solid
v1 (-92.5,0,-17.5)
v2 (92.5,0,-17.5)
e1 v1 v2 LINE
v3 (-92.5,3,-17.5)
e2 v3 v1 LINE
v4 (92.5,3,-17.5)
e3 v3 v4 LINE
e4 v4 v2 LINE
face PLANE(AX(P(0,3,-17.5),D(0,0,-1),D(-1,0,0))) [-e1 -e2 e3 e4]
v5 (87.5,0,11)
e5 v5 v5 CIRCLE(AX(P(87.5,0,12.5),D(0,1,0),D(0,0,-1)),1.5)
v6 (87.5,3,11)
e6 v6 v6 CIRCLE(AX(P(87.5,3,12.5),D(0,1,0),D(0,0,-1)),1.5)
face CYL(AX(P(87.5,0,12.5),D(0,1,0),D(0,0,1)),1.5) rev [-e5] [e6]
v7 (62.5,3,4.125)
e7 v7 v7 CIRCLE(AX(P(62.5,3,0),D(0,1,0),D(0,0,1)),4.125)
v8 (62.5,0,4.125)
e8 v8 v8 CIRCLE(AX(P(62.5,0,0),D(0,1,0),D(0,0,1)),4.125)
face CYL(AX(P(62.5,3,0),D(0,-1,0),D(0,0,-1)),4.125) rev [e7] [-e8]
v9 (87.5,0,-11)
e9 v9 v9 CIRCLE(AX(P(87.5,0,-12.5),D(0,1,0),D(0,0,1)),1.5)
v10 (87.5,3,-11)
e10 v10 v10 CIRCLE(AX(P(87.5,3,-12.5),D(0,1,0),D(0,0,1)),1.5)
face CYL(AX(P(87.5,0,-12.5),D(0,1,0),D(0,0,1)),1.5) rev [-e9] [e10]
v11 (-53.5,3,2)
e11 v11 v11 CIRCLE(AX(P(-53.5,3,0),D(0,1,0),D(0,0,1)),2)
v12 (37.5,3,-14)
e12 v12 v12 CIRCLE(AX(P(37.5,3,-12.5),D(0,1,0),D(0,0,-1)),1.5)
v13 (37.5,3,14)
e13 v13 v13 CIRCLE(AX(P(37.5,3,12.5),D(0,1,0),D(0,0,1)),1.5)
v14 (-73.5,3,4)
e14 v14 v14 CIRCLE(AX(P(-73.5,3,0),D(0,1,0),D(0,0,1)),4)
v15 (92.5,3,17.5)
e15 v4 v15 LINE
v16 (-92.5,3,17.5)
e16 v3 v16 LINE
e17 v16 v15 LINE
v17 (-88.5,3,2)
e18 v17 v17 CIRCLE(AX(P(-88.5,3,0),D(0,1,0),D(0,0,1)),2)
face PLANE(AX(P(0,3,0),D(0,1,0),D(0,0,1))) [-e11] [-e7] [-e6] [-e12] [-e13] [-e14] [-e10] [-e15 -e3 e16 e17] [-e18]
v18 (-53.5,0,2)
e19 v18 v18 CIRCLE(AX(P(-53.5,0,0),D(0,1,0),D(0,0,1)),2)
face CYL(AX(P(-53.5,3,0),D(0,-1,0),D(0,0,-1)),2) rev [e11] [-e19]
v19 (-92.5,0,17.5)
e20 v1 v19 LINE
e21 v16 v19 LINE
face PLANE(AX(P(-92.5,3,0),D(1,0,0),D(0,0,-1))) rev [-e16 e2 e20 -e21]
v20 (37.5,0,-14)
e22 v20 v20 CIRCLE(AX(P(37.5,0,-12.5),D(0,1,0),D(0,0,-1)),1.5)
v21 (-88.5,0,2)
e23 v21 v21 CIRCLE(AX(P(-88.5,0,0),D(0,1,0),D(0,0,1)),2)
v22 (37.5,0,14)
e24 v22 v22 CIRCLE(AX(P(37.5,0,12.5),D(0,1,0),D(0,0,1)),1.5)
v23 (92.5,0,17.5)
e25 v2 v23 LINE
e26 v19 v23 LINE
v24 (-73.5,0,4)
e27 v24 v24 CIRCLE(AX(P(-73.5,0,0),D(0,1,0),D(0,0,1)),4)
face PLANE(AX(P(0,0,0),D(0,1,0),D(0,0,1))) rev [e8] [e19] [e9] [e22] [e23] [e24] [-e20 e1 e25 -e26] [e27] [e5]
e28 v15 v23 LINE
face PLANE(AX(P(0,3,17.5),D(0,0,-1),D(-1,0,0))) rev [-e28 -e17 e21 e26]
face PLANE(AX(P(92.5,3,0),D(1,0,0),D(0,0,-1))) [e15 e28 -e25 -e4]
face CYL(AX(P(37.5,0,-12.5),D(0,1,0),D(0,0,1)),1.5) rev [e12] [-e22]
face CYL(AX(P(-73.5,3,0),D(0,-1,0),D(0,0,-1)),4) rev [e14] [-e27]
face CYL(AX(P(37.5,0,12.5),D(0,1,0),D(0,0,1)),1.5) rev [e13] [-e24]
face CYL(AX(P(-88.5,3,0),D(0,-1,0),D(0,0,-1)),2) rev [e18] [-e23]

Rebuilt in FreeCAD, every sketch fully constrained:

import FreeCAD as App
import Part
import Sketcher

doc = App.newDocument("Part")
params = doc.addObject("Spreadsheet::Sheet", "Params")
for row, (alias, value) in enumerate([
    ("sketch1_diameter", "4 mm"),
    ("sketch1_diameter2", "8 mm"),
    ("sketch1_diameter3", "8.25 mm"),
    ("sketch1_width", "185 mm"),
    ("sketch1_height", "35 mm"),
    ("pad1_length", "3 mm"),
    ("sketch2_diameter", "3 mm"),
], start=1):
    params.set(f"A{row}", alias)
    params.set(f"B{row}", "=" + value)
    params.setAlias(f"B{row}", alias)

body = doc.addObject("PartDesign::Body", "Body")

# Sketch on XZ plane
sketch1 = doc.addObject("Sketcher::SketchObject", "Sketch")
body.addObject(sketch1)
sketch1.AttachmentSupport = (doc.XZ_Plane, [""])
sketch1.MapMode = "FlatFace"
sketch1.addGeometry([
    Part.LineSegment(App.Vector(-92.5, -17.5, 0), App.Vector(-92.5, 17.5, 0)),  # 0
    Part.LineSegment(App.Vector(-92.5, 17.5, 0), App.Vector(92.5, 17.5, 0)),  # 1
    Part.LineSegment(App.Vector(92.5, 17.5, 0), App.Vector(92.5, -17.5, 0)),  # 2
    Part.LineSegment(App.Vector(92.5, -17.5, 0), App.Vector(-92.5, -17.5, 0)),  # 3
    Part.Circle(App.Vector(-88.5, 0, 0), App.Vector(0, 0, 1), 2),  # 4
    Part.Circle(App.Vector(-73.5, 0, 0), App.Vector(0, 0, 1), 4),  # 5
    Part.Circle(App.Vector(-53.5, 0, 0), App.Vector(0, 0, 1), 2),  # 6
    Part.Circle(App.Vector(62.5, 0, 0), App.Vector(0, 0, 1), 4.1),  # 7
], False)
sketch1.addConstraint([
    Sketcher.Constraint("Coincident", 0, 2, 1, 1),
    Sketcher.Constraint("Coincident", 1, 2, 2, 1),
    Sketcher.Constraint("Coincident", 2, 2, 3, 1),
    Sketcher.Constraint("Coincident", 3, 2, 0, 1),
    Sketcher.Constraint("Vertical", 0),
    Sketcher.Constraint("Horizontal", 1),
    Sketcher.Constraint("Vertical", 2),
    Sketcher.Constraint("Horizontal", 3),
    Sketcher.Constraint("Equal", 4, 6),
    Sketcher.Constraint("Symmetric", 0, 2, 2, 2, -1, 1),
    Sketcher.Constraint("PointOnObject", 4, 3, -1),
    Sketcher.Constraint("PointOnObject", 5, 3, -1),
    Sketcher.Constraint("PointOnObject", 6, 3, -1),
    Sketcher.Constraint("PointOnObject", 7, 3, -1),
    Sketcher.Constraint("Diameter", 4, 4.0),
    Sketcher.Constraint("Diameter", 5, 8.0),
    Sketcher.Constraint("Diameter", 7, 8.25),
    Sketcher.Constraint("DistanceX", 1, 1, 1, 2, 185.0),
    Sketcher.Constraint("DistanceY", 0, 1, 0, 2, 35.0),
    Sketcher.Constraint("DistanceX", 4, 3, 5, 3, 15.0),
    Sketcher.Constraint("DistanceX", 5, 3, 6, 3, 20.0),
    Sketcher.Constraint("DistanceX", 6, 3, 7, 3, 116.0),
    Sketcher.Constraint("DistanceX", 0, 2, 4, 3, 4.0),
])
sketch1.setExpression("Constraints[14]", "Params.sketch1_diameter")
sketch1.setExpression("Constraints[15]", "Params.sketch1_diameter2")
sketch1.setExpression("Constraints[16]", "Params.sketch1_diameter3")
sketch1.setExpression("Constraints[17]", "Params.sketch1_width")
sketch1.setExpression("Constraints[18]", "Params.sketch1_height")
pad1 = doc.addObject("PartDesign::Pad", "Pad")
body.addObject(pad1)
pad1.Profile = sketch1
pad1.setExpression("Length", "Params.pad1_length")
pad1.Reversed = True

# Sketch on XZ plane
sketch2 = doc.addObject("Sketcher::SketchObject", "Sketch001")
body.addObject(sketch2)
sketch2.AttachmentSupport = (doc.XZ_Plane, [""])
sketch2.MapMode = "FlatFace"
sketch2.AttachmentOffset = App.Placement(App.Vector(0, 0, -3), App.Rotation())
sketch2.addGeometry([
    Part.Circle(App.Vector(87.5, -12.5, 0), App.Vector(0, 0, 1), 1.5),
    Part.Circle(App.Vector(87.5, 12.5, 0), App.Vector(0, 0, 1), 1.5),
    Part.Circle(App.Vector(37.5, 12.5, 0), App.Vector(0, 0, 1), 1.5),
    Part.Circle(App.Vector(37.5, -12.5, 0), App.Vector(0, 0, 1), 1.5),
], False)
sketch2.addConstraint([
    Sketcher.Constraint("Equal", 0, 1),
    Sketcher.Constraint("Equal", 1, 2),
    Sketcher.Constraint("Equal", 2, 3),
    Sketcher.Constraint("Symmetric", 0, 3, 1, 3, -1),
    Sketcher.Constraint("Symmetric", 2, 3, 3, 3, -1),
    Sketcher.Constraint("Horizontal", 1, 3, 2, 3),
    Sketcher.Constraint("Diameter", 0, 3.0),
    Sketcher.Constraint("DistanceY", 0, 3, 1, 3, 25.0),
    Sketcher.Constraint("DistanceX", 2, 3, 1, 3, 50.0),
    Sketcher.Constraint("DistanceX", -1, 1, 0, 3, 87.5),
])
sketch2.setExpression("Constraints[6]", "Params.sketch2_diameter")
pocket1 = doc.addObject("PartDesign::Pocket", "Pocket")
body.addObject(pocket1)
pocket1.Profile = sketch2
pocket1.Type = "ThroughAll"
pocket1.Reversed = True

doc.recompute()
